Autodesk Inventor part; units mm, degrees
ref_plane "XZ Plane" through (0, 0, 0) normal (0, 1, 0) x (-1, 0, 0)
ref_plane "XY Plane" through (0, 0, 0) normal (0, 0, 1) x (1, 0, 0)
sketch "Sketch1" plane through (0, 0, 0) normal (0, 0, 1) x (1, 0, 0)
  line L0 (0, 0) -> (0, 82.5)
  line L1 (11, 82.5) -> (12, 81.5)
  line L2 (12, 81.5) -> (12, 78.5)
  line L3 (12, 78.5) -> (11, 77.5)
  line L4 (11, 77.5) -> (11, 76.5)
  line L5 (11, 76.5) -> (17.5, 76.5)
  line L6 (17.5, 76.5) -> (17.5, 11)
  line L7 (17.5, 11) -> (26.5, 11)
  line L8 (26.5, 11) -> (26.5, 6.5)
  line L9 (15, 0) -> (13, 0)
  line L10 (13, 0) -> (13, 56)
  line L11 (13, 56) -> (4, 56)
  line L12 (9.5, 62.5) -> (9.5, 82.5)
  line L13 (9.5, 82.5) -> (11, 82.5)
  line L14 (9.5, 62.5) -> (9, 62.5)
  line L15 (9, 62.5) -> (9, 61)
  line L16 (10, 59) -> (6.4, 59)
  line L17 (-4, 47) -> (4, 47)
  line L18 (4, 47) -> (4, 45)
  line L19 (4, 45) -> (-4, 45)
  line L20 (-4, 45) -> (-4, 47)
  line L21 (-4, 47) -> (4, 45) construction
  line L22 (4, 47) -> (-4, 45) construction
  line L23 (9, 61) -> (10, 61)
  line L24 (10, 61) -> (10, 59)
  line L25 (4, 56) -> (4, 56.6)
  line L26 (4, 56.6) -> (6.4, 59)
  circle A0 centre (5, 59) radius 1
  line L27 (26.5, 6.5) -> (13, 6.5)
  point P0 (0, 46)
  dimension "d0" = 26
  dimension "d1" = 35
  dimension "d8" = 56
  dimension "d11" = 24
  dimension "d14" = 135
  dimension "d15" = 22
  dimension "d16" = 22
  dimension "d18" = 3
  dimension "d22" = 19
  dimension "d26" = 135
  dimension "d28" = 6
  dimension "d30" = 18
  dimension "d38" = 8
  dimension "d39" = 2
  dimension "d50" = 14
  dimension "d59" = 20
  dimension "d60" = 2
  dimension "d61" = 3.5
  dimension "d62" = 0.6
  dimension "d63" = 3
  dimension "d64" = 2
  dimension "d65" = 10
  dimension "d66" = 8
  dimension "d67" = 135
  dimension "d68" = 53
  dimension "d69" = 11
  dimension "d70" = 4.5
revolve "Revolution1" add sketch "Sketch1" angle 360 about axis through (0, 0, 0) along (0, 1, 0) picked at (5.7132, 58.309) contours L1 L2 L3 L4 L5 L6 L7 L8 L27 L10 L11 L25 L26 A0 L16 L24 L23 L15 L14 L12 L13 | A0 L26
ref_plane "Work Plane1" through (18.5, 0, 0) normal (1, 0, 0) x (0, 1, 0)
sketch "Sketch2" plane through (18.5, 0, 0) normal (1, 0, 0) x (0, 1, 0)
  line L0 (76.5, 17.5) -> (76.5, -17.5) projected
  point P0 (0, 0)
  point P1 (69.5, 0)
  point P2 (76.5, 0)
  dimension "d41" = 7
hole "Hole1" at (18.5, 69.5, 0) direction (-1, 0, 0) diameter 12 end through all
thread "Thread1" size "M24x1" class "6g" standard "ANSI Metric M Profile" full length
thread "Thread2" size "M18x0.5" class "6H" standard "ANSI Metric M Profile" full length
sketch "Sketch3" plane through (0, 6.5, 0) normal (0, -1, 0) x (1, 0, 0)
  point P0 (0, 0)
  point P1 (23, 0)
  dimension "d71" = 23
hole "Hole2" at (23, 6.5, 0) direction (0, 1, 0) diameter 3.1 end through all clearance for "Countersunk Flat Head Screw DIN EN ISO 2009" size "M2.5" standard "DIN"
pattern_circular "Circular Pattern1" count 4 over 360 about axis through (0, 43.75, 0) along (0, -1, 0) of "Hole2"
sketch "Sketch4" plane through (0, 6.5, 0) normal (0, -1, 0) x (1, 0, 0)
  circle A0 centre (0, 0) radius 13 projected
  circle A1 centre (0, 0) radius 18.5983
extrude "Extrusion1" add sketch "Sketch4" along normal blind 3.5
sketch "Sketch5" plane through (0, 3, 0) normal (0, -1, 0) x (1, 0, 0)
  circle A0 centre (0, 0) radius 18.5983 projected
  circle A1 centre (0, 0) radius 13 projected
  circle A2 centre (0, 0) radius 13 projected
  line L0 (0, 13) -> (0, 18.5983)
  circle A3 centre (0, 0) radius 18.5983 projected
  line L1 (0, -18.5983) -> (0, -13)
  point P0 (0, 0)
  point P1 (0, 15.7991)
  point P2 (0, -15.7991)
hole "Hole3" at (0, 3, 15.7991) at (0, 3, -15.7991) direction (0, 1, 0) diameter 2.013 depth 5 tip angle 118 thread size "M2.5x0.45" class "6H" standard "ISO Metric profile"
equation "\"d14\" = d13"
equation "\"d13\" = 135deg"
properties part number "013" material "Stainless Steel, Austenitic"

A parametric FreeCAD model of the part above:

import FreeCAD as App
import Part
import Sketcher
from FreeCAD import Vector


def add_polygon(sketch, points):
    """Adds a closed chain of lines whose ends are joined by coincident constraints."""
    first, n = sketch.GeometryCount, len(points)
    for a, b in zip(points, points[1:] + points[:1]):
        sketch.addGeometry(Part.LineSegment(App.Vector(*a, 0), App.Vector(*b, 0)), False)
    for i in range(n):
        sketch.addConstraint(Sketcher.Constraint("Coincident", first + i, 2, first + (i + 1) % n, 1))

doc = App.newDocument("Part")
body = doc.addObject("PartDesign::Body", "Body")

# Sketch on XY plane
sketch1 = body.newObject("Sketcher::SketchObject", "Sketch")
sketch1.AttachmentSupport = (doc.getObject("XY_Plane"), [""])
sketch1.MapMode = "FlatFace"
add_polygon(sketch1, [(12, 81.5), (11, 82.5), (9.5, 82.5), (9.5, 62.5), (9, 62.5), (9, 61), (10, 61), (10, 59), (6.4, 59), (4, 56.6), (4, 56), (13, 56), (13, 6.5), (26.5, 6.5), (26.5, 11), (17.5, 11), (17.5, 76.5), (11, 76.5), (11, 77.5), (12, 78.5)])  # lines 0-19
sketch1.addConstraint(Sketcher.Constraint("Horizontal", 1))
sketch1.addConstraint(Sketcher.Constraint("Vertical", 2))
sketch1.addConstraint(Sketcher.Constraint("Horizontal", 3))
sketch1.addConstraint(Sketcher.Constraint("Vertical", 4))
sketch1.addConstraint(Sketcher.Constraint("Horizontal", 5))
sketch1.addConstraint(Sketcher.Constraint("Vertical", 6))
sketch1.addConstraint(Sketcher.Constraint("Horizontal", 7))
sketch1.addConstraint(Sketcher.Constraint("Vertical", 9))
sketch1.addConstraint(Sketcher.Constraint("Horizontal", 10))
sketch1.addConstraint(Sketcher.Constraint("Vertical", 11))
sketch1.addConstraint(Sketcher.Constraint("Horizontal", 12))
sketch1.addConstraint(Sketcher.Constraint("Vertical", 13))
sketch1.addConstraint(Sketcher.Constraint("Horizontal", 14))
sketch1.addConstraint(Sketcher.Constraint("Vertical", 15))
sketch1.addConstraint(Sketcher.Constraint("Horizontal", 16))
sketch1.addConstraint(Sketcher.Constraint("Vertical", 17))
sketch1.addConstraint(Sketcher.Constraint("Vertical", 19))
sketch1.addConstraint(Sketcher.Constraint("Perpendicular", 0, 8))
sketch1.addConstraint(Sketcher.Constraint("Parallel", 8, 18))
sketch1.addConstraint(Sketcher.Constraint("Vertical", 0, 2, 16, 2))
sketch1.addConstraint(Sketcher.Constraint("Equal", 10, 14))
sketch1.addConstraint(Sketcher.Constraint("Equal", 1, 4))
sketch1.addConstraint(Sketcher.Constraint("Equal", 5, 17))
sketch1.addConstraint(Sketcher.Constraint("Equal", 0, 18))
sketch1.addConstraint(Sketcher.Constraint("DistanceY", 2, 2, 2, 1, 20.0))
sketch1.addConstraint(Sketcher.Constraint("DistanceY", 6, 2, 6, 1, 2.0))
sketch1.addConstraint(Sketcher.Constraint("DistanceY", 19, 1, 19, 2, 3.0))
sketch1.addConstraint(Sketcher.Constraint("DistanceY", 9, 2, 9, 1, 0.6))
sketch1.addConstraint(Sketcher.Constraint("DistanceY", 13, 1, 13, 2, 4.5))
sketch1.addConstraint(Sketcher.Constraint("DistanceX", -1, 1, 0, 2, 11.0))
sketch1.addConstraint(Sketcher.Constraint("DistanceX", -1, 1, 5, 2, 10.0))
sketch1.addConstraint(Sketcher.Constraint("DistanceY", -1, 1, 9, 2, 56.0))
sketch1.addConstraint(Sketcher.Constraint("DistanceY", -1, 1, 13, 2, 11.0))
sketch1.addConstraint(Sketcher.Constraint("DistanceX", 3, 2, 0, 2, 2.0))
sketch1.addConstraint(Sketcher.Constraint("DistanceX", 8, 2, 6, 2, 6.0))
sketch1.addConstraint(Sketcher.Constraint("DistanceY", 9, 2, 7, 2, 3.0))
sketch1.addConstraint(Sketcher.Constraint("DistanceX", 6, 2, 10, 2, 3.0))
sketch1.addConstraint(Sketcher.Constraint("DistanceY", 15, 2, 0, 2, 6.0))
sketch1.addConstraint(Sketcher.Constraint("DistanceX", 1, 2, 15, 2, 8.0))
sketch1.addConstraint(Sketcher.Constraint("DistanceY", 6, 2, 2, 2, 3.5))
revolution = body.newObject("PartDesign::Revolution", "Revolution")
revolution.Profile = sketch1
revolution.ReferenceAxis = (sketch1, ["V_Axis"])
revolution.Angle = 360

# Sketch on YZ plane
sketch2 = body.newObject("Sketcher::SketchObject", "Sketch001")
sketch2.AttachmentSupport = (doc.getObject("YZ_Plane"), [""])
sketch2.MapMode = "FlatFace"
sketch2.AttachmentOffset = App.Placement(Vector(0, 0, 18.5), App.Rotation())
sketch2.addGeometry(Part.Circle(Vector(70, 0, 0), Vector(0, 0, 1), 6), False)
sketch2.addConstraint(Sketcher.Constraint("PointOnObject", 0, 3, -1))
sketch2.addConstraint(Sketcher.Constraint("Diameter", 0, 12.0))
sketch2.addConstraint(Sketcher.Constraint("DistanceX", -1, 1, 0, 3, 69.5))
doc.recompute()
hole = body.newObject("PartDesign::Hole", "Hole")
hole.Profile = sketch2
hole.ThreadType = "None"
hole.Diameter = 12
hole.DepthType = "ThroughAll"

# Sketch on XZ plane
sketch3 = body.newObject("Sketcher::SketchObject", "Sketch002")
sketch3.AttachmentSupport = (doc.getObject("XZ_Plane"), [""])
sketch3.MapMode = "FlatFace"
sketch3.AttachmentOffset = App.Placement(Vector(0, 0, -6.5), App.Rotation())
sketch3.addGeometry(Part.Circle(Vector(23, 0, 0), Vector(0, 0, 1), 1.6), False)
sketch3.addConstraint(Sketcher.Constraint("PointOnObject", 0, 3, -1))
sketch3.addConstraint(Sketcher.Constraint("Diameter", 0, 3.1))
sketch3.addConstraint(Sketcher.Constraint("DistanceX", -1, 1, 0, 3, 23.0))
doc.recompute()
hole2 = body.newObject("PartDesign::Hole", "Hole001")
hole2.Profile = sketch3
hole2.ThreadType = "None"
hole2.Diameter = 3.1
hole2.DepthType = "ThroughAll"
doc.recompute()

polarpattern = body.newObject("PartDesign::PolarPattern", "PolarPattern")
polarpattern.Originals = [hole2]
polarpattern.Axis = (doc.getObject("Y_Axis"), [""])
polarpattern.Angle = 360
polarpattern.Occurrences = 4
body.Tip = polarpattern

# Sketch on XZ plane
sketch4 = body.newObject("Sketcher::SketchObject", "Sketch003")
sketch4.AttachmentSupport = (doc.getObject("XZ_Plane"), [""])
sketch4.MapMode = "FlatFace"
sketch4.AttachmentOffset = App.Placement(Vector(0, 0, -6.5), App.Rotation())
sketch4.addGeometry(Part.Circle(Vector(0, 0, 0), Vector(0, 0, 1), 19), False)
sketch4.addGeometry(Part.Circle(Vector(0, 0, 0), Vector(0, 0, 1), 13), False)
sketch4.addConstraint(Sketcher.Constraint("Coincident", 0, 3, -1, 1))
sketch4.addConstraint(Sketcher.Constraint("Coincident", 1, 3, -1, 1))
sketch4.addConstraint(Sketcher.Constraint("Diameter", 1, 26.0))
sketch4.addConstraint(Sketcher.Constraint("Diameter", 0, 37.1966))
pad1 = body.newObject("PartDesign::Pad", "Pad")
pad1.Profile = sketch4
pad1.Length = 3.5

# Sketch on XZ plane
sketch5 = body.newObject("Sketcher::SketchObject", "Sketch004")
sketch5.AttachmentSupport = (doc.getObject("XZ_Plane"), [""])
sketch5.MapMode = "FlatFace"
sketch5.AttachmentOffset = App.Placement(Vector(0, 0, -3), App.Rotation())
sketch5.addGeometry(Part.Circle(Vector(0, 15.8, 0), Vector(0, 0, 1), 1), False)
sketch5.addGeometry(Part.Circle(Vector(0, -15.8, 0), Vector(0, 0, 1), 1), False)
sketch5.addConstraint(Sketcher.Constraint("Equal", 0, 1))
sketch5.addConstraint(Sketcher.Constraint("Symmetric", 0, 3, 1, 3, -1, 1))
sketch5.addConstraint(Sketcher.Constraint("PointOnObject", 0, 3, -2))
sketch5.addConstraint(Sketcher.Constraint("Diameter", 0, 2.013))
sketch5.addConstraint(Sketcher.Constraint("DistanceY", -1, 1, 0, 3, 15.799))
doc.recompute()
hole3 = body.newObject("PartDesign::Hole", "Hole002")
hole3.Profile = sketch5
hole3.ThreadType = "None"
hole3.Diameter = 2.013
hole3.DepthType = "Dimension"
hole3.Depth = 5
hole3.DrillPoint = "Angled"
hole3.DrillPointAngle = 118

doc.recompute()
